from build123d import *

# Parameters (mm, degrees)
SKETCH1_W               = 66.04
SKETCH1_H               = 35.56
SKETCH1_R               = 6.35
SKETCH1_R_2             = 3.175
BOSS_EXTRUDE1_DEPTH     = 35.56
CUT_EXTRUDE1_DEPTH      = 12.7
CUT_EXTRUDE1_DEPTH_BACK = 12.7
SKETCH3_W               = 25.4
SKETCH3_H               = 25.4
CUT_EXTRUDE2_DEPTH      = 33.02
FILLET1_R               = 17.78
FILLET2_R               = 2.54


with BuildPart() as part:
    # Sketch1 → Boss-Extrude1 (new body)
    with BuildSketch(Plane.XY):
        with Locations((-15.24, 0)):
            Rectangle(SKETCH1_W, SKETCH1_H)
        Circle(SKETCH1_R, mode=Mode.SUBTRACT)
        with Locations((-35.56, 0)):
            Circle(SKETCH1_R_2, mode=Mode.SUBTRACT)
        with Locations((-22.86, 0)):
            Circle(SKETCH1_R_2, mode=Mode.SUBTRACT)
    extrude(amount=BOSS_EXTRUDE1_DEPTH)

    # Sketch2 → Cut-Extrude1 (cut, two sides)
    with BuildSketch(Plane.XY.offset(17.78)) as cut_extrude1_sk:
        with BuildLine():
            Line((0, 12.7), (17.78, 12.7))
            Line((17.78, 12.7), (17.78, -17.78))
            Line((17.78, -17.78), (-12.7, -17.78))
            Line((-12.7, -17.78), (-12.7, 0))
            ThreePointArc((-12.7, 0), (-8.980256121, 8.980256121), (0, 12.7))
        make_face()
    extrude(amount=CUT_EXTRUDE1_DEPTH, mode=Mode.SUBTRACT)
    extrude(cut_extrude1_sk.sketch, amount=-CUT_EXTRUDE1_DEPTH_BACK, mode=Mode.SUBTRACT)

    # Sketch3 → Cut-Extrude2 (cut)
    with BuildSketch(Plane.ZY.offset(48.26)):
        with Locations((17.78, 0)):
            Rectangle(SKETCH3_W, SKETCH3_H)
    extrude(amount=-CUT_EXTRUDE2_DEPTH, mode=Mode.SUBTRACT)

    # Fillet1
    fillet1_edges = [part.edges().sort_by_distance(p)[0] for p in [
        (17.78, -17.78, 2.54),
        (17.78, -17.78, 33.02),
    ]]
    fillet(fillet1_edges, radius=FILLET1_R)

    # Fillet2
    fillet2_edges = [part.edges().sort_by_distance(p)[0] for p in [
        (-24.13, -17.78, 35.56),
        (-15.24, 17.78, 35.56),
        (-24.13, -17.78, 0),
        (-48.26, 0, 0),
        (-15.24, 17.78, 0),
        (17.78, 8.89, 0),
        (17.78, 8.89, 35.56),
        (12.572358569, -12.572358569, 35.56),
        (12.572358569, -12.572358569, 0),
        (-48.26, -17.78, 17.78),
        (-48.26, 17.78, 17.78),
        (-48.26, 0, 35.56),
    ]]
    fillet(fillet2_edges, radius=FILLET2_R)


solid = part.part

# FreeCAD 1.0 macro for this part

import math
import FreeCAD as App
import Part
import Sketcher
from FreeCAD import Vector
Q = App.Units.Quantity


def edges_at(feature, points):
    """Names of the edges that pass closest to the given points."""
    edges = feature.Shape.Edges
    near = lambda p: min(range(len(edges)), key=lambda i: edges[i].distToShape(Part.Vertex(*p))[0])
    return sorted({f"Edge{near(p) + 1}" for p in points})

doc = App.newDocument("Part")
body = doc.addObject("PartDesign::Body", "Body")

# Sketch on XY plane
sketch1 = body.newObject("Sketcher::SketchObject", "Sketch")
sketch1.AttachmentSupport = (doc.getObject("XY_Plane"), [""])
sketch1.MapMode = "FlatFace"
sketch1.addGeometry(Part.LineSegment(Vector(-48.3, 17.8, 0), Vector(-48.3, -17.8, 0)), False)
sketch1.addGeometry(Part.LineSegment(Vector(-48.3, -17.8, 0), Vector(17.8, -17.8, 0)), False)
sketch1.addGeometry(Part.LineSegment(Vector(17.8, -17.8, 0), Vector(17.8, 17.8, 0)), False)
sketch1.addGeometry(Part.LineSegment(Vector(17.8, 17.8, 0), Vector(-48.3, 17.8, 0)), False)
sketch1.addGeometry(Part.Circle(Vector(-35.6, 0, 0), Vector(0, 0, 1), 3.2), False)
sketch1.addGeometry(Part.Circle(Vector(-22.9, 0, 0), Vector(0, 0, 1), 3.2), False)
sketch1.addGeometry(Part.Circle(Vector(0, 0, 0), Vector(0, 0, 1), 6.3), False)
sketch1.addConstraint(Sketcher.Constraint("Coincident", 0, 2, 1, 1))
sketch1.addConstraint(Sketcher.Constraint("Coincident", 1, 2, 2, 1))
sketch1.addConstraint(Sketcher.Constraint("Coincident", 2, 2, 3, 1))
sketch1.addConstraint(Sketcher.Constraint("Coincident", 3, 2, 0, 1))
sketch1.addConstraint(Sketcher.Constraint("Vertical", 0))
sketch1.addConstraint(Sketcher.Constraint("Horizontal", 1))
sketch1.addConstraint(Sketcher.Constraint("Vertical", 2))
sketch1.addConstraint(Sketcher.Constraint("Horizontal", 3))
sketch1.addConstraint(Sketcher.Constraint("Coincident", 6, 3, -1, 1))
sketch1.addConstraint(Sketcher.Constraint("Equal", 4, 5))
sketch1.addConstraint(Sketcher.Constraint("PointOnObject", 4, 3, -1))
sketch1.addConstraint(Sketcher.Constraint("PointOnObject", 5, 3, -1))
sketch1.addConstraint(Sketcher.Constraint("Diameter", 6, Q("0.5 in")))
sketch1.addConstraint(Sketcher.Constraint("Diameter", 4, Q("0.25 in")))
sketch1.addConstraint(Sketcher.Constraint("DistanceX", 1, 1, 1, 2, Q("2.6 in")))
sketch1.addConstraint(Sketcher.Constraint("DistanceY", 0, 2, 0, 1, Q("1.4 in")))
sketch1.addConstraint(Sketcher.Constraint("DistanceX", 0, 2, 5, 3, Q("1 in")))
sketch1.addConstraint(Sketcher.Constraint("DistanceX", 4, 3, -1, 1, Q("1.4 in")))
sketch1.addConstraint(Sketcher.Constraint("DistanceX", 5, 3, -1, 1, Q("0.9 in")))
sketch1.addConstraint(Sketcher.Constraint("DistanceY", 0, 2, -1, 1, Q("0.7 in")))
pad1 = body.newObject("PartDesign::Pad", "Pad")
pad1.Profile = sketch1
pad1.Length = Q("1.4 in")

# Sketch on XY plane
sketch2 = body.newObject("Sketcher::SketchObject", "Sketch001")
sketch2.AttachmentSupport = (doc.getObject("XY_Plane"), [""])
sketch2.MapMode = "FlatFace"
sketch2.AttachmentOffset = App.Placement(Vector(0, 0, 0.7 * 25.4), App.Rotation())
sketch2.addGeometry(Part.LineSegment(Vector(18, 13, 0), Vector(0, 13, 0)), False)
sketch2.addGeometry(Part.ArcOfCircle(Part.Circle(Vector(0, 0, 0), Vector(0, 0, 1), 13), math.radians(90), math.radians(180)), False)
sketch2.addGeometry(Part.LineSegment(Vector(-13, 0, 0), Vector(-13, -18, 0)), False)
sketch2.addGeometry(Part.LineSegment(Vector(-13, -18, 0), Vector(18, -18, 0)), False)
sketch2.addGeometry(Part.LineSegment(Vector(18, -18, 0), Vector(18, 13, 0)), False)
sketch2.addConstraint(Sketcher.Constraint("Tangent", 0, 2, 1, 1))
sketch2.addConstraint(Sketcher.Constraint("Tangent", 1, 2, 2, 1))
sketch2.addConstraint(Sketcher.Constraint("Coincident", 2, 2, 3, 1))
sketch2.addConstraint(Sketcher.Constraint("Coincident", 3, 2, 4, 1))
sketch2.addConstraint(Sketcher.Constraint("Coincident", 4, 2, 0, 1))
sketch2.addConstraint(Sketcher.Constraint("Horizontal", 0))
sketch2.addConstraint(Sketcher.Constraint("Vertical", 2))
sketch2.addConstraint(Sketcher.Constraint("Horizontal", 3))
sketch2.addConstraint(Sketcher.Constraint("Vertical", 4))
sketch2.addConstraint(Sketcher.Constraint("Coincident", 1, 3, -1, 1))
sketch2.addConstraint(Sketcher.Constraint("Equal", 0, 2))
sketch2.addConstraint(Sketcher.Constraint("Radius", 1, Q("0.5 in")))
sketch2.addConstraint(Sketcher.Constraint("DistanceX", 0, 2, 0, 1, Q("0.7 in")))
pocket1 = body.newObject("PartDesign::Pocket", "Pocket")
pocket1.Profile = sketch2
pocket1.Type = "TwoLengths"
pocket1.Length = Q("0.5 in")
pocket1.Length2 = Q("0.5 in")
pocket1.Reversed = True

# Sketch on YZ plane
sketch3 = body.newObject("Sketcher::SketchObject", "Sketch002")
sketch3.AttachmentSupport = (doc.getObject("YZ_Plane"), [""])
sketch3.MapMode = "FlatFace"
sketch3.AttachmentOffset = App.Placement(Vector(0, 0, -1.9 * 25.4), App.Rotation())
sketch3.addGeometry(Part.LineSegment(Vector(13, 5, 0), Vector(-13, 5, 0)), False)
sketch3.addGeometry(Part.LineSegment(Vector(-13, 5, 0), Vector(-13, 30, 0)), False)
sketch3.addGeometry(Part.LineSegment(Vector(-13, 30, 0), Vector(13, 30, 0)), False)
sketch3.addGeometry(Part.LineSegment(Vector(13, 30, 0), Vector(13, 5, 0)), False)
sketch3.addConstraint(Sketcher.Constraint("Coincident", 0, 2, 1, 1))
sketch3.addConstraint(Sketcher.Constraint("Coincident", 1, 2, 2, 1))
sketch3.addConstraint(Sketcher.Constraint("Coincident", 2, 2, 3, 1))
sketch3.addConstraint(Sketcher.Constraint("Coincident", 3, 2, 0, 1))
sketch3.addConstraint(Sketcher.Constraint("Horizontal", 0))
sketch3.addConstraint(Sketcher.Constraint("Vertical", 1))
sketch3.addConstraint(Sketcher.Constraint("Horizontal", 2))
sketch3.addConstraint(Sketcher.Constraint("Vertical", 3))
sketch3.addConstraint(Sketcher.Constraint("Equal", 2, 1))
sketch3.addConstraint(Sketcher.Constraint("DistanceX", 0, 2, 0, 1, Q("1 in")))
sketch3.addConstraint(Sketcher.Constraint("DistanceX", 0, 2, -1, 1, Q("0.5 in")))
sketch3.addConstraint(Sketcher.Constraint("DistanceY", -1, 1, 0, 2, Q("0.2 in")))
pocket2 = body.newObject("PartDesign::Pocket", "Pocket001")
pocket2.Profile = sketch3
pocket2.Length = Q("1.3 in")
pocket2.Reversed = True
doc.recompute()

fillet = body.newObject("PartDesign::Fillet", "Fillet")
fillet.Base = (pocket2, edges_at(pocket2, [(17.78, -17.78, 2.54), (17.78, -17.78, 33.02)]))
fillet.Radius = Q("0.7 in")
doc.recompute()

fillet2 = body.newObject("PartDesign::Fillet", "Fillet001")
fillet2.Base = (fillet, edges_at(fillet, [
    (-24.13, -17.78, 35.56),
    (-15.24, 17.78, 35.56),
    (-24.13, -17.78, 0),
    (-48.26, 0, 0),
    (-15.24, 17.78, 0),
    (17.78, 8.89, 0),
    (17.78, 8.89, 35.56),
    (12.572, -12.572, 35.56),
    (12.572, -12.572, 0),
    (-48.26, -17.78, 17.78),
    (-48.26, 17.78, 17.78),
    (-48.26, 0, 35.56),
]))
fillet2.Radius = Q("0.1 in")

doc.recompute()
